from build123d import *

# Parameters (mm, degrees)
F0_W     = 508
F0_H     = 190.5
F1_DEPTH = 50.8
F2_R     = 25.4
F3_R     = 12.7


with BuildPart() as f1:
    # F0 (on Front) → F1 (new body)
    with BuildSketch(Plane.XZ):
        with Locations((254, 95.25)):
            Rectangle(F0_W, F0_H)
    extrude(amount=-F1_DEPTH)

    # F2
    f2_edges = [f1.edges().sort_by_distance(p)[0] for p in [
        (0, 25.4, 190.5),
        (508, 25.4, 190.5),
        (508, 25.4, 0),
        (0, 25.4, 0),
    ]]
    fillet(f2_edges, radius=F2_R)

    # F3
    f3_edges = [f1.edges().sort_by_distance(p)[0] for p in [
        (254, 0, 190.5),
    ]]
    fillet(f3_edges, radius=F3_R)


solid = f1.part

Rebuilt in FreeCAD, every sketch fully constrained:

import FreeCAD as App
import Part
import Sketcher
Q = App.Units.Quantity


def edges_at(feature, points):
    """Names of the edges that pass closest to the given points."""
    edges = feature.Shape.Edges
    near = lambda p: min(range(len(edges)), key=lambda i: edges[i].distToShape(Part.Vertex(*p))[0])
    return sorted({f"Edge{near(p) + 1}" for p in points})


def add_polygon(sketch, points):
    """Adds a closed chain of lines whose ends are joined by coincident constraints."""
    first, n = sketch.GeometryCount, len(points)
    for a, b in zip(points, points[1:] + points[:1]):
        sketch.addGeometry(Part.LineSegment(App.Vector(*a, 0), App.Vector(*b, 0)), False)
    for i in range(n):
        sketch.addConstraint(Sketcher.Constraint("Coincident", first + i, 2, first + (i + 1) % n, 1))

doc = App.newDocument("Part")
body = doc.addObject("PartDesign::Body", "Body")

# Sketch on XZ plane
sketch1 = body.newObject("Sketcher::SketchObject", "Sketch")
sketch1.AttachmentSupport = (doc.getObject("XZ_Plane"), [""])
sketch1.MapMode = "FlatFace"
add_polygon(sketch1, [(0, 190.5), (0, 0), (508, 0), (508, 190.5)])  # lines 0-3
sketch1.addConstraint(Sketcher.Constraint("Vertical", 0))
sketch1.addConstraint(Sketcher.Constraint("Horizontal", 1))
sketch1.addConstraint(Sketcher.Constraint("Vertical", 2))
sketch1.addConstraint(Sketcher.Constraint("Horizontal", 3))
sketch1.addConstraint(Sketcher.Constraint("Coincident", 0, 2, -1, 1))
sketch1.addConstraint(Sketcher.Constraint("DistanceX", 1, 1, 1, 2, Q("20 in")))
sketch1.addConstraint(Sketcher.Constraint("DistanceY", 0, 2, 0, 1, Q("7.5 in")))
pad1 = body.newObject("PartDesign::Pad", "Pad")
pad1.Profile = sketch1
pad1.Length = Q("2 in")
pad1.Reversed = True
doc.recompute()

fillet = body.newObject("PartDesign::Fillet", "Fillet")
fillet.Base = (pad1, edges_at(pad1, [
    (0, 25.4, 190.5),
    (508, 25.4, 190.5),
    (508, 25.4, 0),
    (0, 25.4, 0),
]))
fillet.Radius = Q("1 in")
doc.recompute()

fillet2 = body.newObject("PartDesign::Fillet", "Fillet001")
fillet2.Base = (fillet, edges_at(fillet, [(254, 0, 190.5)]))
fillet2.Radius = Q("0.5 in")

doc.recompute()
